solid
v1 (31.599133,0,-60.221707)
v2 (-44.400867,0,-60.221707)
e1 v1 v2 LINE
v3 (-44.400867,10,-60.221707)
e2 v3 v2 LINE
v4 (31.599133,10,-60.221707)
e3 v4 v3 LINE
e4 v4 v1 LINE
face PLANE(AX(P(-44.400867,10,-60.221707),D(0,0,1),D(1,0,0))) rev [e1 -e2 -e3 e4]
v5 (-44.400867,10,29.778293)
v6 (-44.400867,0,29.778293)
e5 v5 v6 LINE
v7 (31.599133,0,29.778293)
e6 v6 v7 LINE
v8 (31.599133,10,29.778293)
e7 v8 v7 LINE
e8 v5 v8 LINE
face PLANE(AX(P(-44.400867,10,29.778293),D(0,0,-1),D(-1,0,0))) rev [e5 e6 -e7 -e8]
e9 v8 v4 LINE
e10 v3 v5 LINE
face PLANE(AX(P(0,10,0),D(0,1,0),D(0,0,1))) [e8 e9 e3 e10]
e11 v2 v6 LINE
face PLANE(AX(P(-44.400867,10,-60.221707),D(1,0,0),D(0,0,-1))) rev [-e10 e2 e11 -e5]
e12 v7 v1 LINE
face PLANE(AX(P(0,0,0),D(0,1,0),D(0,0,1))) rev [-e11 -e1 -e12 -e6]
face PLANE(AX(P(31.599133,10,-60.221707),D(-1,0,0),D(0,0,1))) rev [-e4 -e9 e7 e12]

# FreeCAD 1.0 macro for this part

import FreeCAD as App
import Part
import Sketcher
from FreeCAD import Vector


def add_polygon(sketch, points):
    """Adds a closed chain of lines whose ends are joined by coincident constraints."""
    first, n = sketch.GeometryCount, len(points)
    for a, b in zip(points, points[1:] + points[:1]):
        sketch.addGeometry(Part.LineSegment(App.Vector(*a, 0), App.Vector(*b, 0)), False)
    for i in range(n):
        sketch.addConstraint(Sketcher.Constraint("Coincident", first + i, 2, first + (i + 1) % n, 1))

doc = App.newDocument("Part")
body = doc.addObject("PartDesign::Body", "Body")

# Sketch on XZ plane
sketch1 = body.newObject("Sketcher::SketchObject", "Sketch")
sketch1.AttachmentSupport = (doc.getObject("XZ_Plane"), [""])
sketch1.MapMode = "FlatFace"
add_polygon(sketch1, [(-44, -60), (-44, 30), (32, 30), (32, -60)])  # lines 0-3
sketch1.addConstraint([
    Sketcher.Constraint("Vertical", 0),
    Sketcher.Constraint("Horizontal", 1),
    Sketcher.Constraint("Vertical", 2),
    Sketcher.Constraint("Horizontal", 3),
    Sketcher.Constraint("DistanceX", 1, 1, 1, 2, 76.0),
    Sketcher.Constraint("DistanceY", 0, 1, 0, 2, 90.0),
    Sketcher.Constraint("DistanceX", 0, 2, -1, 1, 44.400867),
    Sketcher.Constraint("DistanceY", -1, 1, 0, 2, 29.778293),
])
pad1 = body.newObject("PartDesign::Pad", "Pad")
pad1.Profile = sketch1
pad1.Length = 10
pad1.Reversed = True

doc.recompute()
